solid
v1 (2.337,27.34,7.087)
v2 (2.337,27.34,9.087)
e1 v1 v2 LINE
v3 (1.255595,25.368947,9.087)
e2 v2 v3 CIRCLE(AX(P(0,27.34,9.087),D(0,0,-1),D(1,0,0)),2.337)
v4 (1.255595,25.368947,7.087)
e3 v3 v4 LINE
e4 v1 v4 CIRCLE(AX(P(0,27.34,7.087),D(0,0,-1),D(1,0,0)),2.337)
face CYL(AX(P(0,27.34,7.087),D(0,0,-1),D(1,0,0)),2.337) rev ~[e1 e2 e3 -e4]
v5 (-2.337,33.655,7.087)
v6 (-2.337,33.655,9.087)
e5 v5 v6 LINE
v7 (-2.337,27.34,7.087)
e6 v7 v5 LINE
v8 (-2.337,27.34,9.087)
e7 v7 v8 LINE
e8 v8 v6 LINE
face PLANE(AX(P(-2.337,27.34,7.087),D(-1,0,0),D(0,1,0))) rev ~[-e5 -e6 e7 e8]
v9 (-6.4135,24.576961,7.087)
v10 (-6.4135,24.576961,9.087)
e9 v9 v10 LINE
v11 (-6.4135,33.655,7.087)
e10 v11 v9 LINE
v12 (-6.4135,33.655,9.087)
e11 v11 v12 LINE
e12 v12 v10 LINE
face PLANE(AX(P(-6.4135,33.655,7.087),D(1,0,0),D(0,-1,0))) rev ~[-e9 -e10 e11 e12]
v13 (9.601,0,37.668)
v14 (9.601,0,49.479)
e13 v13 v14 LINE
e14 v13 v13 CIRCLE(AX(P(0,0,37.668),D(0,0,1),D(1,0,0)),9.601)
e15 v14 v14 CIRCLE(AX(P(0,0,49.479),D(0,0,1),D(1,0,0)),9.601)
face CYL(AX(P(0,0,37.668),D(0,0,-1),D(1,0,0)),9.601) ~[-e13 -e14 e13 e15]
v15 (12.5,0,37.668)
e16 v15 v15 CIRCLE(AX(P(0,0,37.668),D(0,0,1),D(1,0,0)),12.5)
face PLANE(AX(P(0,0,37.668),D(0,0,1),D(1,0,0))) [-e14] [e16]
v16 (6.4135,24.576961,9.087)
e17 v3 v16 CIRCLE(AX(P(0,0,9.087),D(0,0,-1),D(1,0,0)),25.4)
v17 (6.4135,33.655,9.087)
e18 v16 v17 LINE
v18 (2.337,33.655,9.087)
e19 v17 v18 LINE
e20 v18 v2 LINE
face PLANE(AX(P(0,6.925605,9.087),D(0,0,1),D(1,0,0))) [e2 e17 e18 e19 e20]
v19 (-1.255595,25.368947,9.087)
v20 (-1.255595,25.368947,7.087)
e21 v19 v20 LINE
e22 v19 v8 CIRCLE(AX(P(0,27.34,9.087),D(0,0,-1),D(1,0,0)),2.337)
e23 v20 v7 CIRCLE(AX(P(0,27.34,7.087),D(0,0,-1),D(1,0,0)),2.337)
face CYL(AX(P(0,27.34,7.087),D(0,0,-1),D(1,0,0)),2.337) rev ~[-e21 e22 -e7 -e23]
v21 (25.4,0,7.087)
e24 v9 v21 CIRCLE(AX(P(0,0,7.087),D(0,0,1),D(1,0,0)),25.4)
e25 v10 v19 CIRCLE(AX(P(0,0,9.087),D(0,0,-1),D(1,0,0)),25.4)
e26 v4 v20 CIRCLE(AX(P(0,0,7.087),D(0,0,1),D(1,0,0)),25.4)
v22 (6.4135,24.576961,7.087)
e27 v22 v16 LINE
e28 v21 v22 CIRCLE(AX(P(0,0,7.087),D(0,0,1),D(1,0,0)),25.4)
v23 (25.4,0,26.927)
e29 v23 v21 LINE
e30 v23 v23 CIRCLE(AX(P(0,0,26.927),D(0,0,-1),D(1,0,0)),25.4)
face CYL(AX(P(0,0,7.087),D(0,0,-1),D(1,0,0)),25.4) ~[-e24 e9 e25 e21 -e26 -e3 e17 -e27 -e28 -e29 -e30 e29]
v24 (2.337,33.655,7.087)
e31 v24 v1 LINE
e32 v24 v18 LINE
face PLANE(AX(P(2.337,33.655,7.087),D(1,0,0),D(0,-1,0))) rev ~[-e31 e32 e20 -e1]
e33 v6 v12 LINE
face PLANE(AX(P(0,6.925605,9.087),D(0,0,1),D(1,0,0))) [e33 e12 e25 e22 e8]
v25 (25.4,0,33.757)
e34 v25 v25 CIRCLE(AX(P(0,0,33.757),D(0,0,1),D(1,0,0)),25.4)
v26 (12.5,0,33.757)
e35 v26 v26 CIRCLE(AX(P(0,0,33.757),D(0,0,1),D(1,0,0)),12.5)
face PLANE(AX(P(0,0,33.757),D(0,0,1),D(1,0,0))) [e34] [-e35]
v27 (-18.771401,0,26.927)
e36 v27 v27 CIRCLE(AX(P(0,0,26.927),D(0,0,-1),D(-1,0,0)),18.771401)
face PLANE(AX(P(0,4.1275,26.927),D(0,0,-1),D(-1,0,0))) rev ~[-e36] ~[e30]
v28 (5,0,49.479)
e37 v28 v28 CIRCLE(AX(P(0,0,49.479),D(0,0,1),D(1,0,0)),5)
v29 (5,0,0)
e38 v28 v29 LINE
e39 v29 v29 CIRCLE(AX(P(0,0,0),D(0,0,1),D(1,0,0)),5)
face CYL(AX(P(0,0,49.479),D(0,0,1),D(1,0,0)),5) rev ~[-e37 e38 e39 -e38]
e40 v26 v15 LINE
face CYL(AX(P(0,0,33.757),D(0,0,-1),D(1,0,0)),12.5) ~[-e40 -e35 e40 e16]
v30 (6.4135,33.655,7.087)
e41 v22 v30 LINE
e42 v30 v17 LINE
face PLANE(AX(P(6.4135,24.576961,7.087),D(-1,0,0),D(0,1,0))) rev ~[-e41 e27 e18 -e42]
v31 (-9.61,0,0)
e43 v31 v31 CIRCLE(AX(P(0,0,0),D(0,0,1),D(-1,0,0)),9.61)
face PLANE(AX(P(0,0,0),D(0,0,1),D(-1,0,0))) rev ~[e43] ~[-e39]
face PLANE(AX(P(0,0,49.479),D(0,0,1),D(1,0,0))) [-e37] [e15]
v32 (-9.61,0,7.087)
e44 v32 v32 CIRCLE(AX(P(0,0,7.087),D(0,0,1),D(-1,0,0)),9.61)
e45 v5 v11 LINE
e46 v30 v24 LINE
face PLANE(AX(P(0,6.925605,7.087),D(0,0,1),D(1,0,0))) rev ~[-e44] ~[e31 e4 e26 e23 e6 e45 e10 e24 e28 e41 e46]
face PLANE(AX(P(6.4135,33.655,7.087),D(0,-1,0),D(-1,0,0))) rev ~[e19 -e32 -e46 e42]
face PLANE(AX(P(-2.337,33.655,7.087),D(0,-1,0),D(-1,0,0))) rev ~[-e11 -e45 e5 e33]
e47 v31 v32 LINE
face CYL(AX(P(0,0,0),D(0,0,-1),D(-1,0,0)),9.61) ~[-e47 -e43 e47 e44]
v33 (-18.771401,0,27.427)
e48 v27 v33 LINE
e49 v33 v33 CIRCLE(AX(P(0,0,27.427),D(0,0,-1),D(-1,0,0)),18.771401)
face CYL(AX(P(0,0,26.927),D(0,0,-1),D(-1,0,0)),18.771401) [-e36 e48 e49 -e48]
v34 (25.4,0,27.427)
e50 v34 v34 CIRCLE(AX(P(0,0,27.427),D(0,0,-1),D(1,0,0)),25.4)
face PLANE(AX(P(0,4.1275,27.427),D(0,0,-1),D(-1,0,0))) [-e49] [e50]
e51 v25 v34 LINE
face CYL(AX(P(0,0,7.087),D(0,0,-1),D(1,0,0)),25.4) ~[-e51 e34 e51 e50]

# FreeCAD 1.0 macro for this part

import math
import FreeCAD as App
import Part
import Sketcher

V = App.Vector


def add_polygon(sketch, points):
    """Adds a closed chain of lines whose ends are joined by coincident constraints."""
    first, n = sketch.GeometryCount, len(points)
    for a, b in zip(points, points[1:] + points[:1]):
        sketch.addGeometry(Part.LineSegment(App.Vector(*a, 0), App.Vector(*b, 0)), False)
    for i in range(n):
        sketch.addConstraint(Sketcher.Constraint("Coincident", first + i, 2, first + (i + 1) % n, 1))

doc = App.newDocument("Part")
params = doc.addObject("Spreadsheet::Sheet", "Params")
for row, (alias, value) in enumerate([
    ("sketch1_diameter", "19.22 mm"),
    ("pad1_length", "7.087 mm"),
    ("sketch2_diameter", "50.8 mm"),
    ("pad2_length", "26.67 mm"),
    ("sketch3_diameter", "25 mm"),
    ("pad3_length", "3.911 mm"),
    ("pad4_length", "11.811 mm"),
    ("sketch5_radius", "25.4 mm"),
    ("pad5_length", "2 mm"),
    ("sketch6_diameter", "10 mm"),
    ("pocket2_length", "0.5 mm"),
], start=1):
    params.set(f"A{row}", alias)
    params.set(f"B{row}", "=" + value)
    params.setAlias(f"B{row}", alias)

body = doc.addObject("PartDesign::Body", "Body")

# Sketch on XY plane
sketch1 = body.newObject("Sketcher::SketchObject", "Sketch")
sketch1.AttachmentSupport = (doc.getObject("XY_Plane"), [""])
sketch1.MapMode = "FlatFace"
sketch1.addGeometry(Part.Circle(V(0, 0, 0), V(0, 0, 1), 10), False)
sketch1.addConstraint(Sketcher.Constraint("Coincident", 0, 3, -1, 1))
sketch1.addConstraint(Sketcher.Constraint("Diameter", 0, 19.22))
sketch1.setExpression("Constraints[1]", "Params.sketch1_diameter")
pad1 = body.newObject("PartDesign::Pad", "Pad")
pad1.Profile = sketch1
pad1.setExpression("Length", "Params.pad1_length")

# Sketch on XY plane
sketch2 = body.newObject("Sketcher::SketchObject", "Sketch001")
sketch2.AttachmentSupport = (doc.getObject("XY_Plane"), [""])
sketch2.MapMode = "FlatFace"
sketch2.AttachmentOffset = App.Placement(V(0, 0, 7.087), App.Rotation())
sketch2.addGeometry(Part.Circle(V(0, 0, 0), V(0, 0, 1), 25), False)
sketch2.addConstraint(Sketcher.Constraint("Coincident", 0, 3, -1, 1))
sketch2.addConstraint(Sketcher.Constraint("Diameter", 0, 50.8))
sketch2.setExpression("Constraints[1]", "Params.sketch2_diameter")
pad2 = body.newObject("PartDesign::Pad", "Pad001")
pad2.Profile = sketch2
pad2.setExpression("Length", "Params.pad2_length")

# Sketch on XY plane
sketch3 = body.newObject("Sketcher::SketchObject", "Sketch002")
sketch3.AttachmentSupport = (doc.getObject("XY_Plane"), [""])
sketch3.MapMode = "FlatFace"
sketch3.AttachmentOffset = App.Placement(V(0, 0, 33.757), App.Rotation())
sketch3.addGeometry(Part.Circle(V(0, 0, 0), V(0, 0, 1), 12), False)
sketch3.addConstraint(Sketcher.Constraint("Coincident", 0, 3, -1, 1))
sketch3.addConstraint(Sketcher.Constraint("Diameter", 0, 25.0))
sketch3.setExpression("Constraints[1]", "Params.sketch3_diameter")
pad3 = body.newObject("PartDesign::Pad", "Pad002")
pad3.Profile = sketch3
pad3.setExpression("Length", "Params.pad3_length")

# Sketch on XY plane
sketch4 = body.newObject("Sketcher::SketchObject", "Sketch003")
sketch4.AttachmentSupport = (doc.getObject("XY_Plane"), [""])
sketch4.MapMode = "FlatFace"
sketch4.AttachmentOffset = App.Placement(V(0, 0, 37.668), App.Rotation())
sketch4.addGeometry(Part.Circle(V(0, 0, 0), V(0, 0, 1), 10), False)
sketch4.addConstraint(Sketcher.Constraint("Coincident", 0, 3, -1, 1))
sketch4.addConstraint(Sketcher.Constraint("Diameter", 0, 19.202))
pad4 = body.newObject("PartDesign::Pad", "Pad003")
pad4.Profile = sketch4
pad4.setExpression("Length", "Params.pad4_length")

# Sketch on XY plane
sketch5 = body.newObject("Sketcher::SketchObject", "Sketch004")
sketch5.AttachmentSupport = (doc.getObject("XY_Plane"), [""])
sketch5.MapMode = "FlatFace"
sketch5.AttachmentOffset = App.Placement(V(0, 0, 7.087), App.Rotation())
sketch5.addGeometry(Part.LineSegment(V(2.3, 33.7, 0), V(6.4, 33.7, 0)), False)
sketch5.addGeometry(Part.LineSegment(V(6.4, 33.7, 0), V(6.4, 24.6, 0)), False)
sketch5.addGeometry(Part.ArcOfCircle(Part.Circle(V(0, 0, 0), V(0, 0, 1), 25.4), math.radians(105), math.radians(435)), False)
sketch5.addGeometry(Part.LineSegment(V(-6.4, 24.6, 0), V(-6.4, 33.7, 0)), False)
sketch5.addGeometry(Part.LineSegment(V(-6.4, 33.7, 0), V(-2.3, 33.7, 0)), False)
sketch5.addGeometry(Part.LineSegment(V(-2.3, 33.7, 0), V(-2.3, 27.3, 0)), False)
sketch5.addGeometry(Part.ArcOfCircle(Part.Circle(V(0, 27.3, 0), V(0, 0, 1), 2.3), math.radians(180), math.radians(360)), False)
sketch5.addGeometry(Part.LineSegment(V(2.3, 27.3, 0), V(2.3, 33.7, 0)), False)
sketch5.addConstraint(Sketcher.Constraint("Coincident", 0, 2, 1, 1))
sketch5.addConstraint(Sketcher.Constraint("Coincident", 1, 2, 2, 2))
sketch5.addConstraint(Sketcher.Constraint("Coincident", 2, 1, 3, 1))
sketch5.addConstraint(Sketcher.Constraint("Coincident", 3, 2, 4, 1))
sketch5.addConstraint(Sketcher.Constraint("Coincident", 4, 2, 5, 1))
sketch5.addConstraint(Sketcher.Constraint("Tangent", 5, 2, 6, 1))
sketch5.addConstraint(Sketcher.Constraint("Tangent", 6, 2, 7, 1))
sketch5.addConstraint(Sketcher.Constraint("Coincident", 7, 2, 0, 1))
sketch5.addConstraint(Sketcher.Constraint("Horizontal", 0))
sketch5.addConstraint(Sketcher.Constraint("Vertical", 1))
sketch5.addConstraint(Sketcher.Constraint("Vertical", 3))
sketch5.addConstraint(Sketcher.Constraint("Horizontal", 4))
sketch5.addConstraint(Sketcher.Constraint("Vertical", 5))
sketch5.addConstraint(Sketcher.Constraint("Vertical", 7))
sketch5.addConstraint(Sketcher.Constraint("Coincident", 2, 3, -1, 1))
sketch5.addConstraint(Sketcher.Constraint("Symmetric", 0, 2, 3, 2, -2))
sketch5.addConstraint(Sketcher.Constraint("PointOnObject", 6, 3, -2))
sketch5.addConstraint(Sketcher.Constraint("Radius", 2, 25.4))
sketch5.addConstraint(Sketcher.Constraint("Radius", 6, 2.337))
sketch5.addConstraint(Sketcher.Constraint("DistanceY", 5, 2, 5, 1, 6.315))
sketch5.addConstraint(Sketcher.Constraint("DistanceY", -1, 1, 6, 3, 27.34))
sketch5.addConstraint(Sketcher.Constraint("DistanceX", 0, 1, 0, 2, 4.0765))
sketch5.setExpression("Constraints[17]", "Params.sketch5_radius")
pad5 = body.newObject("PartDesign::Pad", "Pad004")
pad5.Profile = sketch5
pad5.setExpression("Length", "Params.pad5_length")

# Sketch on XY plane
sketch6 = body.newObject("Sketcher::SketchObject", "Sketch005")
sketch6.AttachmentSupport = (doc.getObject("XY_Plane"), [""])
sketch6.MapMode = "FlatFace"
sketch6.AttachmentOffset = App.Placement(V(0, 0, 49.479), App.Rotation())
sketch6.addGeometry(Part.Circle(V(0, 0, 0), V(0, 0, 1), 5), False)
sketch6.addConstraint(Sketcher.Constraint("Coincident", 0, 3, -1, 1))
sketch6.addConstraint(Sketcher.Constraint("Diameter", 0, 10.0))
sketch6.setExpression("Constraints[1]", "Params.sketch6_diameter")
pocket1 = body.newObject("PartDesign::Pocket", "Pocket")
pocket1.Profile = sketch6
pocket1.Type = "ThroughAll"

# Sketch on XY plane
sketch7 = body.newObject("Sketcher::SketchObject", "Sketch006")
sketch7.AttachmentSupport = (doc.getObject("XY_Plane"), [""])
sketch7.MapMode = "FlatFace"
sketch7.AttachmentOffset = App.Placement(V(0, 0, 26.927), App.Rotation())
add_polygon(sketch7, [(36, 44), (36, -36), (-36, -36), (-36, 44)])  # lines 0-3
sketch7.addGeometry(Part.Circle(V(0, 0, 0), V(0, 0, 1), 19), False)  # 4
sketch7.addConstraint(Sketcher.Constraint("Vertical", 0))
sketch7.addConstraint(Sketcher.Constraint("Horizontal", 1))
sketch7.addConstraint(Sketcher.Constraint("Vertical", 2))
sketch7.addConstraint(Sketcher.Constraint("Horizontal", 3))
sketch7.addConstraint(Sketcher.Constraint("Coincident", 4, 3, -1, 1))
sketch7.addConstraint(Sketcher.Constraint("DistanceX", 1, 2, 1, 1, 71.256))
sketch7.addConstraint(Sketcher.Constraint("DistanceY", 0, 2, 0, 1, 79.511))
sketch7.addConstraint(Sketcher.Constraint("Diameter", 4, 37.542802))
sketch7.addConstraint(Sketcher.Constraint("DistanceX", -1, 1, 0, 2, 35.628))
sketch7.addConstraint(Sketcher.Constraint("DistanceY", 0, 2, -1, 1, 35.628))
pocket2 = body.newObject("PartDesign::Pocket", "Pocket001")
pocket2.Profile = sketch7
pocket2.setExpression("Length", "Params.pocket2_length")
pocket2.Reversed = True

doc.recompute()
